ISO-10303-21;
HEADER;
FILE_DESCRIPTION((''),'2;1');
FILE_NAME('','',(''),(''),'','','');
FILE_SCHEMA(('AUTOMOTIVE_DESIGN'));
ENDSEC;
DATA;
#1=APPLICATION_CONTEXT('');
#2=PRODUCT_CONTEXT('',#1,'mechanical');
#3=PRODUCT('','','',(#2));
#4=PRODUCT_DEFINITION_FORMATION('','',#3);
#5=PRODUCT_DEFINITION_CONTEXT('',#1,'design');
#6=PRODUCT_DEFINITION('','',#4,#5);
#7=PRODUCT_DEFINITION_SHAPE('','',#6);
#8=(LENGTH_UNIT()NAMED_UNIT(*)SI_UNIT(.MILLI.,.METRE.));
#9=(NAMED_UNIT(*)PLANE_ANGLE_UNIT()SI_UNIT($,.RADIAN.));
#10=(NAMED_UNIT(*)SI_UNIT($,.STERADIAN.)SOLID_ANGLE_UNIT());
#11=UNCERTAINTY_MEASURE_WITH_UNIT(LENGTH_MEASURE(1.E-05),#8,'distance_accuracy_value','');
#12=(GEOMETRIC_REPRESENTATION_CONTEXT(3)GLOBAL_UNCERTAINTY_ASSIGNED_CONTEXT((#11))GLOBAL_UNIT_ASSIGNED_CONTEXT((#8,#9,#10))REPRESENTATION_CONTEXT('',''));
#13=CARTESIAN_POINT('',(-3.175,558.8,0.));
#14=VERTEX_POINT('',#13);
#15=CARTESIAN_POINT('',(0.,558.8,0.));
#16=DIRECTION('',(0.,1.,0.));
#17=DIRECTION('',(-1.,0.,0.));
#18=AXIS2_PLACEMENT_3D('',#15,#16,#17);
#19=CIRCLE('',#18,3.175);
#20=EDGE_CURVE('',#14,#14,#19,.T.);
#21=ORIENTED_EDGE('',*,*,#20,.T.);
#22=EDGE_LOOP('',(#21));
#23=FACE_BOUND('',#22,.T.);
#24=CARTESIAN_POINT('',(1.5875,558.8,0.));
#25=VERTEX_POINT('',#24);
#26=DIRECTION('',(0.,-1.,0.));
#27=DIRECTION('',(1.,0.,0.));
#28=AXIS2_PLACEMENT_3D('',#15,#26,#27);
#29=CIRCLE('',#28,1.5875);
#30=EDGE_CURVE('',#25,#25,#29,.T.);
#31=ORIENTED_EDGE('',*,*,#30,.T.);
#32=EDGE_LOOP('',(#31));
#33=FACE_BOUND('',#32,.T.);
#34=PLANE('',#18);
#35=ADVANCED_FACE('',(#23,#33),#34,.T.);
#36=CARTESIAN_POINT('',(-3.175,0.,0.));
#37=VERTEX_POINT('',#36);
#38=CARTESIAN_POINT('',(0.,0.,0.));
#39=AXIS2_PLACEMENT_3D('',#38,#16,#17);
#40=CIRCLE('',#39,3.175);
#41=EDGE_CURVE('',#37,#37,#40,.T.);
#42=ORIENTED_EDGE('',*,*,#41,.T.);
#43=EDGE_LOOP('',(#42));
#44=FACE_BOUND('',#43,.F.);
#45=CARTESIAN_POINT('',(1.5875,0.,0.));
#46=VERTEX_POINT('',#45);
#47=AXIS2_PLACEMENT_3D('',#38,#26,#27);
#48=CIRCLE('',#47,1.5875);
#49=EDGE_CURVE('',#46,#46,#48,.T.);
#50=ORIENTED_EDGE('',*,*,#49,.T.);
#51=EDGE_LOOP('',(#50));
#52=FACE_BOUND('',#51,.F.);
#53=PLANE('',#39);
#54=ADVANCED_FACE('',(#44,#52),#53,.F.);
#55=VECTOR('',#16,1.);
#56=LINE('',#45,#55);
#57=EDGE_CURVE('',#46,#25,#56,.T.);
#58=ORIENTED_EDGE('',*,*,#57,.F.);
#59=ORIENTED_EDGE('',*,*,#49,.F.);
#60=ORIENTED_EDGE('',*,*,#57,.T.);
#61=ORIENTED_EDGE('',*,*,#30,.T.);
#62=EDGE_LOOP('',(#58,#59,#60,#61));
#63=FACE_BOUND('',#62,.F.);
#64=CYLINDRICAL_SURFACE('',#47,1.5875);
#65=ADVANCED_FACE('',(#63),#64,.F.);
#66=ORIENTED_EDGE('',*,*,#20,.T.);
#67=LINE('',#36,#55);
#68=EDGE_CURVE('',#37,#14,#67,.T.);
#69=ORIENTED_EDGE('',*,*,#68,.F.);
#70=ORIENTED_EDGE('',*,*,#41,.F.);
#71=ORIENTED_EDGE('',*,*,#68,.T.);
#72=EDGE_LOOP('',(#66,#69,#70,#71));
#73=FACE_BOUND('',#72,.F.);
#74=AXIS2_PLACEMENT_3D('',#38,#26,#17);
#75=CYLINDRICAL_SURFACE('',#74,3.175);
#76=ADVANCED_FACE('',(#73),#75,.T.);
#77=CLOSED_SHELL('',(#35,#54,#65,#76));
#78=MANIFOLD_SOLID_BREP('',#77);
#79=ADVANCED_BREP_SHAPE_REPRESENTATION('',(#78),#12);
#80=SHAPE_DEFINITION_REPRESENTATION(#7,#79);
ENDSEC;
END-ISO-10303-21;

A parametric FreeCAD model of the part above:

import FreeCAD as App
import Part
import Sketcher
from FreeCAD import Vector
Q = App.Units.Quantity

doc = App.newDocument("Part")
params = doc.addObject("Spreadsheet::Sheet", "Params")
for row, (alias, value) in enumerate([
    ("sketch1_diameter", "0.25 in"),
    ("pad1_length", "22 in"),
    ("sketch2_diameter", "0.125 in"),
    ("pocket1_length", "46 in"),
], start=1):
    params.set(f"A{row}", alias)
    params.set(f"B{row}", "=" + value)
    params.setAlias(f"B{row}", alias)

body = doc.addObject("PartDesign::Body", "Body")

# Sketch on XZ plane
sketch1 = body.newObject("Sketcher::SketchObject", "Sketch")
sketch1.AttachmentSupport = (doc.getObject("XZ_Plane"), [""])
sketch1.MapMode = "FlatFace"
sketch1.addGeometry(Part.Circle(Vector(0, 0, 0), Vector(0, 0, 1), 3.175), False)
sketch1.addConstraint([
    Sketcher.Constraint("Coincident", 0, 3, -1, 1),
    Sketcher.Constraint("Diameter", 0, Q("0.25 in")),
])
sketch1.setExpression("Constraints[1]", "Params.sketch1_diameter")
pad1 = body.newObject("PartDesign::Pad", "Pad")
pad1.Profile = sketch1
pad1.setExpression("Length", "Params.pad1_length")
pad1.Reversed = True

# Sketch on XZ plane
sketch2 = body.newObject("Sketcher::SketchObject", "Sketch001")
sketch2.AttachmentSupport = (doc.getObject("XZ_Plane"), [""])
sketch2.MapMode = "FlatFace"
sketch2.addGeometry(Part.Circle(Vector(0, 0, 0), Vector(0, 0, 1), 1.5875), False)
sketch2.addConstraint([
    Sketcher.Constraint("Coincident", 0, 3, -1, 1),
    Sketcher.Constraint("Diameter", 0, Q("0.125 in")),
])
sketch2.setExpression("Constraints[1]", "Params.sketch2_diameter")
pocket1 = body.newObject("PartDesign::Pocket", "Pocket")
pocket1.Profile = sketch2
pocket1.setExpression("Length", "Params.pocket1_length")

doc.recompute()
